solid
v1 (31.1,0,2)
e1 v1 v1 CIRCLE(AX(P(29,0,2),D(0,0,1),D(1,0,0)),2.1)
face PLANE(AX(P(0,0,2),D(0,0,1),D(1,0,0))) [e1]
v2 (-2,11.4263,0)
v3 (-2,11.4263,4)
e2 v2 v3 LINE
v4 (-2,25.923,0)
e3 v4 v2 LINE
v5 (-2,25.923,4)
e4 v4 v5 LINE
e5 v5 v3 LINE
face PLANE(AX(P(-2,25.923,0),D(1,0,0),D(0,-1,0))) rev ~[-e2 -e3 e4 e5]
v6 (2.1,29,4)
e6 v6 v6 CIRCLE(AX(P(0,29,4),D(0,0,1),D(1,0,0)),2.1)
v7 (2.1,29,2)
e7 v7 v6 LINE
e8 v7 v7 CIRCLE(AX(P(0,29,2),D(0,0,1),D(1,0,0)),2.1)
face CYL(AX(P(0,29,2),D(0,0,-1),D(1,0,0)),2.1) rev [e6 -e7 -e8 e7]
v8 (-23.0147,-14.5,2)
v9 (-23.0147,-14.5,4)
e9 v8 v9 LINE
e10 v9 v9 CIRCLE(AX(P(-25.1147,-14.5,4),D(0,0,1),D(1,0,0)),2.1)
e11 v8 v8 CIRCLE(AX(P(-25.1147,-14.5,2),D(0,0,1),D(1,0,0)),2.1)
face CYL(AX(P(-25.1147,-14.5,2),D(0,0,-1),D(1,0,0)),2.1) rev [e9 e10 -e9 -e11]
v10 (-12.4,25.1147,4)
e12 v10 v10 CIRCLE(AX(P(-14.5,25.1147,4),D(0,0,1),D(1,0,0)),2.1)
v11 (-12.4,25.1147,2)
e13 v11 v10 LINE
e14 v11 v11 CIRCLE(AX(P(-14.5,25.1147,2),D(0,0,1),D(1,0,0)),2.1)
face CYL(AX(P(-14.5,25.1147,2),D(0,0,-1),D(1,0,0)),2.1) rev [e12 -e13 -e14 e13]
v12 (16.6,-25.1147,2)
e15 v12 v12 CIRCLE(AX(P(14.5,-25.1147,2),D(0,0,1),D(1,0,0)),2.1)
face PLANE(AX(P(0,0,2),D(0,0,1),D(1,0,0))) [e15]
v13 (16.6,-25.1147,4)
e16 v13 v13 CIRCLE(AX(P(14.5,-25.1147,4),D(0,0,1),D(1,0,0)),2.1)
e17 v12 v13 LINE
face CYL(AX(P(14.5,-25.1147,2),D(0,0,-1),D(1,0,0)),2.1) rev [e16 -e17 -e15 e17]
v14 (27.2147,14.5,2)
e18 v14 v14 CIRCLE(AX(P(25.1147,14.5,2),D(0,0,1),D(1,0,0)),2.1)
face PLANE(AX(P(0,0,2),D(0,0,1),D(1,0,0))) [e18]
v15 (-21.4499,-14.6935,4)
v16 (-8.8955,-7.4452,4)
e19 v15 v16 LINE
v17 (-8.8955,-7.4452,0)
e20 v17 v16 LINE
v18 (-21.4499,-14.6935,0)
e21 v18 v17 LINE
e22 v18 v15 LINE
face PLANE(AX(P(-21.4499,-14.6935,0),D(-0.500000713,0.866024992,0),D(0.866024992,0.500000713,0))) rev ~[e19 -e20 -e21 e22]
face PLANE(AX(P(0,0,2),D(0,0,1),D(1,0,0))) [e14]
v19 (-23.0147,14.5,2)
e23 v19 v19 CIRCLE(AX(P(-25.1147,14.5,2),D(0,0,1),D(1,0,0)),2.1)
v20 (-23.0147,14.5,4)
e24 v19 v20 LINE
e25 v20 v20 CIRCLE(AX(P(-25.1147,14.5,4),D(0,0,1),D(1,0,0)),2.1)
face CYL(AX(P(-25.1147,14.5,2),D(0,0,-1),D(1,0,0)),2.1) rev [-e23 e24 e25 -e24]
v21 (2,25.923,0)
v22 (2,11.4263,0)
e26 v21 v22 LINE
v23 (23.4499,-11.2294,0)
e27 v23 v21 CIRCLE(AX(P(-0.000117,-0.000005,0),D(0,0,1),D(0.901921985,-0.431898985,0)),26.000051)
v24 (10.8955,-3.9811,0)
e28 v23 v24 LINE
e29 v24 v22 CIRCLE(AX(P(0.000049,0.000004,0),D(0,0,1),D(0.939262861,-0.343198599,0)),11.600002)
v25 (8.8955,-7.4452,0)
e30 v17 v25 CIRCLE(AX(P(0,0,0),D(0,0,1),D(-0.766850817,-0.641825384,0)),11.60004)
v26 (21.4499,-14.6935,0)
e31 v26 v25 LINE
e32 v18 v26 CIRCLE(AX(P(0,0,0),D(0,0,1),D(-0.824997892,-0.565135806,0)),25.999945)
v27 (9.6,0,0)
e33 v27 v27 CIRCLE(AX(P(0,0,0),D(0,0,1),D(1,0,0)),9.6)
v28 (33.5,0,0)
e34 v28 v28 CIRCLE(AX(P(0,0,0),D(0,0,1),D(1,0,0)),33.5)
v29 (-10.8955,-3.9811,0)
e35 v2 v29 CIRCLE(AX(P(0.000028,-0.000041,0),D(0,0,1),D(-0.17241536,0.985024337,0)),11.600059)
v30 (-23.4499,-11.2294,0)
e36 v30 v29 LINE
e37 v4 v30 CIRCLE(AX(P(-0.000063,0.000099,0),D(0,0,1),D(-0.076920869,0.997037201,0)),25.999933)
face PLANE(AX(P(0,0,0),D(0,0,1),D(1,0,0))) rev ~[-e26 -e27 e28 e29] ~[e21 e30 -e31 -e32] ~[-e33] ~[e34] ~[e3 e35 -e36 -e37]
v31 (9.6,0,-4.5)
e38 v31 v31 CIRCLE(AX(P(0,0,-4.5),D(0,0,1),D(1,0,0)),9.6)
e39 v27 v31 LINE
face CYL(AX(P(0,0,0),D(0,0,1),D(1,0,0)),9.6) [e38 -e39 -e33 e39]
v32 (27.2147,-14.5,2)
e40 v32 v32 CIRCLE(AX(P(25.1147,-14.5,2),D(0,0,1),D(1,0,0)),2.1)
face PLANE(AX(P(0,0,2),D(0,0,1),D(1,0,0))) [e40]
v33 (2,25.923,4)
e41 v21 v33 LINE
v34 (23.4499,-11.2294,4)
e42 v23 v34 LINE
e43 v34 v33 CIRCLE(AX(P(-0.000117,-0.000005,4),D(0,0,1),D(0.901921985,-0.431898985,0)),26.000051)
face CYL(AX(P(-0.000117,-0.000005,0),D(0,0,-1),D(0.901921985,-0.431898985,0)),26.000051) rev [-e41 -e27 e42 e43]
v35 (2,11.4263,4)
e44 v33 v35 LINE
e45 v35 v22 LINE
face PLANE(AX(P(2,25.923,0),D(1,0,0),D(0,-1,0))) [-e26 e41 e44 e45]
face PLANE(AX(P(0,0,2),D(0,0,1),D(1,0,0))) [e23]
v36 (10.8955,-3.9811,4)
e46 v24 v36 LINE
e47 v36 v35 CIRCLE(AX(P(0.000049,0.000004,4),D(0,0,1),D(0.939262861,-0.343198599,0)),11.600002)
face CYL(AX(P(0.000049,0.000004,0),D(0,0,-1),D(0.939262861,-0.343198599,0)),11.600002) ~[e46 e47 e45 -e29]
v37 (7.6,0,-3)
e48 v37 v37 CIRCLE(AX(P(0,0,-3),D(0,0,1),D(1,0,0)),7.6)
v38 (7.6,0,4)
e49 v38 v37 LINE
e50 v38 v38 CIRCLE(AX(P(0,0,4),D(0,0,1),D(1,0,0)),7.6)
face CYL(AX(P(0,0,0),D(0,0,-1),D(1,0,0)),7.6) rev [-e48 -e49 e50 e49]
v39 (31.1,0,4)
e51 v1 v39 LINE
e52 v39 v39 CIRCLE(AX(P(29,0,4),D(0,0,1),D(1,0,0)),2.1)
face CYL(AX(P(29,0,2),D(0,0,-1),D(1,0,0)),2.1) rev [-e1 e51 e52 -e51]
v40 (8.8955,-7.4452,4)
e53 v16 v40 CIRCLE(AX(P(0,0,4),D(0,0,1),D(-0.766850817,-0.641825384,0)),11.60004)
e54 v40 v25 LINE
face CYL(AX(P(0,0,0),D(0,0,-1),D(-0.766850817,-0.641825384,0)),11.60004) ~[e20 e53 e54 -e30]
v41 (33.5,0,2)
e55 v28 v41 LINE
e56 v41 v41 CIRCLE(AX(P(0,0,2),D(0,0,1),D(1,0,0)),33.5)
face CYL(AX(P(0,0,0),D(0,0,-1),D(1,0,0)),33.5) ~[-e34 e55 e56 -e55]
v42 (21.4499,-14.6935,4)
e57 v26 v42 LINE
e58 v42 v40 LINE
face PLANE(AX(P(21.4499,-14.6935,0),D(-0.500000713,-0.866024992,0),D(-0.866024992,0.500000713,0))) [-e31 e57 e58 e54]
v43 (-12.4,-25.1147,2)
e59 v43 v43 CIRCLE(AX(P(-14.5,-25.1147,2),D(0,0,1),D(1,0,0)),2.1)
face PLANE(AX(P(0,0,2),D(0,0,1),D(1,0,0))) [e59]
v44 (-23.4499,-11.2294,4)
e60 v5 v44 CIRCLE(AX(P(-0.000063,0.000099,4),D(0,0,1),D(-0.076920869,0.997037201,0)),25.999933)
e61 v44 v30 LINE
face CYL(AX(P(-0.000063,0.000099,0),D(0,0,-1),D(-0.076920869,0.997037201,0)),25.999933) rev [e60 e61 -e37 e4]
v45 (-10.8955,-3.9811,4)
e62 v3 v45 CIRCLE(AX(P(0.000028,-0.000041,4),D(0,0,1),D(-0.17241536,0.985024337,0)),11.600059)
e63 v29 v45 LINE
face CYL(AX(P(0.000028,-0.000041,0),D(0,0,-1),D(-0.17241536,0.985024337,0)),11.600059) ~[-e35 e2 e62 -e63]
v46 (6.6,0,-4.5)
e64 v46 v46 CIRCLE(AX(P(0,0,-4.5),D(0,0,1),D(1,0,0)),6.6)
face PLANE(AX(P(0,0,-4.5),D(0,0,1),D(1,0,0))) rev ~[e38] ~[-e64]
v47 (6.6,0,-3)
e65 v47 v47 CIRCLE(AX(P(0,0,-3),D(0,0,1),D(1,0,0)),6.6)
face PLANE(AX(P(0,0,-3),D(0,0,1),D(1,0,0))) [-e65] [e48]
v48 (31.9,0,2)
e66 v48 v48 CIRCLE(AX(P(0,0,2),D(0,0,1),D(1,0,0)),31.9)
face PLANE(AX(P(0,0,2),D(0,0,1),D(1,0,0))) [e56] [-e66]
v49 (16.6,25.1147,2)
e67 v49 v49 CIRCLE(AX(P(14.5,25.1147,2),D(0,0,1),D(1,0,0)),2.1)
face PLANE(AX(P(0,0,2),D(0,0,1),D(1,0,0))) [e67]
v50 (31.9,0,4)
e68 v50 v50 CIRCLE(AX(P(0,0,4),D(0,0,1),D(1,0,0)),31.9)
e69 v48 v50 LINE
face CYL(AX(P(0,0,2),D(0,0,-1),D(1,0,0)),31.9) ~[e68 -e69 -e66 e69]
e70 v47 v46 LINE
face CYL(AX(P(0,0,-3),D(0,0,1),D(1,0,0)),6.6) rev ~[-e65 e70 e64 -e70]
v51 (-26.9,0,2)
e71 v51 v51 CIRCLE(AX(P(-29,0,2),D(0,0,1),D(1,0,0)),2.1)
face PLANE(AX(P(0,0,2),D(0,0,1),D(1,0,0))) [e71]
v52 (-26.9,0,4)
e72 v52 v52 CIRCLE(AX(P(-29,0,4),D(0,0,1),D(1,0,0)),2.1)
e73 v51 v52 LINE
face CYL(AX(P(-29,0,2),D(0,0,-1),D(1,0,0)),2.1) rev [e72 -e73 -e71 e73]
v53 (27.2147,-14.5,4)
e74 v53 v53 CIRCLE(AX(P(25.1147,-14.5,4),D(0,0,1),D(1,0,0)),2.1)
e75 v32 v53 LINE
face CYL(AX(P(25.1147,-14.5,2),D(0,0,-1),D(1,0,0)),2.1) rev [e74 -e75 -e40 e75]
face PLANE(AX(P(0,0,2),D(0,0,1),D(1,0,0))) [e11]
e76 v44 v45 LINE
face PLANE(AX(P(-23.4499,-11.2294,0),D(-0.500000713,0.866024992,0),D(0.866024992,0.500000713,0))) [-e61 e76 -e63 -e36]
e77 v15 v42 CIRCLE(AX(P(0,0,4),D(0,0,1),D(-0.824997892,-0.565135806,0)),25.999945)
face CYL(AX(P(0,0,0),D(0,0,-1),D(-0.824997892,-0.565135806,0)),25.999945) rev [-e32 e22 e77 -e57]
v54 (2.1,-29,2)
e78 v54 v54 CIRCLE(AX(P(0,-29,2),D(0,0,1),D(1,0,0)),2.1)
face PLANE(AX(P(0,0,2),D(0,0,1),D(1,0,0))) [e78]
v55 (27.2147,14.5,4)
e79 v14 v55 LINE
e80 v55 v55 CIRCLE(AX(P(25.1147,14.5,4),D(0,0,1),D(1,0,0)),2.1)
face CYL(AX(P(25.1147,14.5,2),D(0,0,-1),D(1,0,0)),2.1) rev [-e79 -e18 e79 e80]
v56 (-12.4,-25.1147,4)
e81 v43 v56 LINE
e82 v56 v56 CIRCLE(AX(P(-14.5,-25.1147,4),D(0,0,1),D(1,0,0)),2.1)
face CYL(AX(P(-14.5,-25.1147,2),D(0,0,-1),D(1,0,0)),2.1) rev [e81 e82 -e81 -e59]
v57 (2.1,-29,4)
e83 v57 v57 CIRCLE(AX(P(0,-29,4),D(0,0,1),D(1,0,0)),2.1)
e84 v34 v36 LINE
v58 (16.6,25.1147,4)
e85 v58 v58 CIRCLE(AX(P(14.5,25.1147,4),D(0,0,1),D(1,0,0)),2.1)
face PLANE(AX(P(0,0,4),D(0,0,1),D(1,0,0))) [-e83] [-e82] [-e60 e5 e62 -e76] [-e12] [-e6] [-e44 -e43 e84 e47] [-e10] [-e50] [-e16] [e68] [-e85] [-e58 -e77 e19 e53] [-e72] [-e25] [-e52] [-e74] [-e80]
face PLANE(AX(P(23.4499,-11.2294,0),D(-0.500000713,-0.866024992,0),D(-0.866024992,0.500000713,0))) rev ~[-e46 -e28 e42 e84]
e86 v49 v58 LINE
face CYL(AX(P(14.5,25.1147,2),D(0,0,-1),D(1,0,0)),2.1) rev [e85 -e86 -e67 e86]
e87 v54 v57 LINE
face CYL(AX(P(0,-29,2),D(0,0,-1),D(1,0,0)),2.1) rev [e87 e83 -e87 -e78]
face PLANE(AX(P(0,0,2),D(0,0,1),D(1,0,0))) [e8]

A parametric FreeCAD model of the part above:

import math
import FreeCAD as App
import Part
import Sketcher
from FreeCAD import Vector
Q = App.Units.Quantity

doc = App.newDocument("Part")
body = doc.addObject("PartDesign::Body", "Body")

# Sketch on XY plane
sketch1 = body.newObject("Sketcher::SketchObject", "Sketch")
sketch1.AttachmentSupport = (doc.getObject("XY_Plane"), [""])
sketch1.MapMode = "FlatFace"
sketch1.addGeometry(Part.Circle(Vector(0, 0, 0), Vector(0, 0, 1), 34), False)
sketch1.addGeometry(Part.LineSegment(Vector(9, -7, 0), Vector(21, -15, 0)), False)
sketch1.addGeometry(Part.ArcOfCircle(Part.Circle(Vector(0, 0, 0), Vector(0, 0, 1), 26), math.radians(-146), math.radians(-34)), False)
sketch1.addGeometry(Part.LineSegment(Vector(-21, -15, 0), Vector(-9, -7, 0)), False)
sketch1.addGeometry(Part.ArcOfCircle(Part.Circle(Vector(0, 0, 0), Vector(0, 0, 1), 12), math.radians(-140), math.radians(-40)), False)
sketch1.addGeometry(Part.ArcOfCircle(Part.Circle(Vector(0, 0, 0), Vector(0, 0, 1), 26), math.radians(94), math.radians(206)), False)
sketch1.addGeometry(Part.LineSegment(Vector(-2, 26, 0), Vector(-2, 11, 0)), False)
sketch1.addGeometry(Part.ArcOfCircle(Part.Circle(Vector(0, 0, 0), Vector(0, 0, 1), 12), math.radians(100), math.radians(200)), False)
sketch1.addGeometry(Part.LineSegment(Vector(-11, -4, 0), Vector(-23, -11, 0)), False)
sketch1.addGeometry(Part.LineSegment(Vector(2, 11, 0), Vector(2, 26, 0)), False)
sketch1.addGeometry(Part.ArcOfCircle(Part.Circle(Vector(0, 0, 0), Vector(0, 0, 1), 26), math.radians(-26), math.radians(86)), False)
sketch1.addGeometry(Part.LineSegment(Vector(23, -11, 0), Vector(11, -4, 0)), False)
sketch1.addGeometry(Part.ArcOfCircle(Part.Circle(Vector(0, 0, 0), Vector(0, 0, 1), 12), math.radians(-20), math.radians(80)), False)
sketch1.addGeometry(Part.Circle(Vector(0, 0, 0), Vector(0, 0, 1), 8), False)
sketch1.addConstraint(Sketcher.Constraint("Coincident", 1, 2, 2, 2))
sketch1.addConstraint(Sketcher.Constraint("Coincident", 2, 1, 3, 1))
sketch1.addConstraint(Sketcher.Constraint("Coincident", 3, 2, 4, 1))
sketch1.addConstraint(Sketcher.Constraint("Coincident", 4, 2, 1, 1))
sketch1.addConstraint(Sketcher.Constraint("Coincident", 5, 1, 6, 1))
sketch1.addConstraint(Sketcher.Constraint("Coincident", 6, 2, 7, 1))
sketch1.addConstraint(Sketcher.Constraint("Coincident", 7, 2, 8, 1))
sketch1.addConstraint(Sketcher.Constraint("Coincident", 8, 2, 5, 2))
sketch1.addConstraint(Sketcher.Constraint("Coincident", 9, 2, 10, 2))
sketch1.addConstraint(Sketcher.Constraint("Coincident", 10, 1, 11, 1))
sketch1.addConstraint(Sketcher.Constraint("Coincident", 11, 2, 12, 1))
sketch1.addConstraint(Sketcher.Constraint("Coincident", 12, 2, 9, 1))
sketch1.addConstraint(Sketcher.Constraint("Vertical", 6))
sketch1.addConstraint(Sketcher.Constraint("Vertical", 9))
sketch1.addConstraint(Sketcher.Constraint("Coincident", 0, 3, -1, 1))
sketch1.addConstraint(Sketcher.Constraint("Coincident", 2, 3, -1, 1))
sketch1.addConstraint(Sketcher.Constraint("Coincident", 4, 3, -1, 1))
sketch1.addConstraint(Sketcher.Constraint("Coincident", 5, 3, -1, 1))
sketch1.addConstraint(Sketcher.Constraint("Coincident", 7, 3, -1, 1))
sketch1.addConstraint(Sketcher.Constraint("Coincident", 10, 3, -1, 1))
sketch1.addConstraint(Sketcher.Constraint("Coincident", 12, 3, -1, 1))
sketch1.addConstraint(Sketcher.Constraint("Coincident", 13, 3, -1, 1))
sketch1.addConstraint(Sketcher.Constraint("Equal", 2, 5))
sketch1.addConstraint(Sketcher.Constraint("Equal", 4, 7))
sketch1.addConstraint(Sketcher.Constraint("Equal", 5, 10))
sketch1.addConstraint(Sketcher.Constraint("Equal", 7, 12))
sketch1.addConstraint(Sketcher.Constraint("Parallel", 3, 8))
sketch1.addConstraint(Sketcher.Constraint("Parallel", 1, 11))
sketch1.addConstraint(Sketcher.Constraint("Horizontal", 1, 2, 2, 1))
sketch1.addConstraint(Sketcher.Constraint("Horizontal", 3, 2, 4, 2))
sketch1.addConstraint(Sketcher.Constraint("Horizontal", 5, 1, 9, 2))
sketch1.addConstraint(Sketcher.Constraint("Horizontal", 8, 2, 10, 1))
sketch1.addConstraint(Sketcher.Constraint("Equal", 3, 8))
sketch1.addConstraint(Sketcher.Constraint("Diameter", 0, Q("67 mm")))
sketch1.addConstraint(Sketcher.Constraint("Diameter", 13, Q("15.2 mm")))
sketch1.addConstraint(Sketcher.Constraint("DistanceX", 5, 1, -1, 1, Q("2 mm")))
sketch1.addConstraint(Sketcher.Constraint("Radius", 2, Q("26 mm")))
sketch1.addConstraint(Sketcher.Constraint("DistanceX", 7, 2, 3, 2, Q("2 mm")))
sketch1.addConstraint(Sketcher.Constraint("Radius", 4, Q("11.6 mm")))
sketch1.addConstraint(Sketcher.Constraint("Angle", 1, Q("-30 deg")))
pad1 = body.newObject("PartDesign::Pad", "Pad")
pad1.Profile = sketch1
pad1.Length = 2

# Sketch on XY plane
sketch2 = body.newObject("Sketcher::SketchObject", "Sketch001")
sketch2.AttachmentSupport = (doc.getObject("XY_Plane"), [""])
sketch2.MapMode = "FlatFace"
sketch2.AttachmentOffset = App.Placement(Vector(0, 0, 2), App.Rotation())
sketch2.addGeometry(Part.Circle(Vector(0, 0, 0), Vector(0, 0, 1), 31.9), False)
sketch2.addGeometry(Part.Circle(Vector(0, 0, 0), Vector(0, 0, 1), 7.6), False)
sketch2.addGeometry(Part.Circle(Vector(-14.5, -25.1, 0), Vector(0, 0, 1), 2.1), False)
sketch2.addGeometry(Part.Circle(Vector(-25.1, -14.5, 0), Vector(0, 0, 1), 2.1), False)
sketch2.addGeometry(Part.Circle(Vector(0, -29, 0), Vector(0, 0, 1), 2.1), False)
sketch2.addGeometry(Part.Circle(Vector(14.5, -25.1, 0), Vector(0, 0, 1), 2.1), False)
sketch2.addGeometry(Part.LineSegment(Vector(8.9, -7.4, 0), Vector(21.4, -14.7, 0)), False)
sketch2.addGeometry(Part.ArcOfCircle(Part.Circle(Vector(0, 0, 0), Vector(0, 0, 1), 26), math.radians(-146), math.radians(-34)), False)
sketch2.addGeometry(Part.LineSegment(Vector(-21.4, -14.7, 0), Vector(-8.9, -7.4, 0)), False)
sketch2.addGeometry(Part.ArcOfCircle(Part.Circle(Vector(0, 0, 0), Vector(0, 0, 1), 11.6), math.radians(-140), math.radians(-40)), False)
sketch2.addGeometry(Part.Circle(Vector(25.1, -14.5, 0), Vector(0, 0, 1), 2.1), False)
sketch2.addGeometry(Part.Circle(Vector(-29, 0, 0), Vector(0, 0, 1), 2.1), False)
sketch2.addGeometry(Part.Circle(Vector(-25.1, 14.5, 0), Vector(0, 0, 1), 2.1), False)
sketch2.addGeometry(Part.ArcOfCircle(Part.Circle(Vector(0, 0, 0), Vector(0, 0, 1), 26), math.radians(94), math.radians(206)), False)
sketch2.addGeometry(Part.LineSegment(Vector(-2, 25.9, 0), Vector(-2, 11.4, 0)), False)
sketch2.addGeometry(Part.ArcOfCircle(Part.Circle(Vector(0, 0, 0), Vector(0, 0, 1), 11.6), math.radians(100), math.radians(200)), False)
sketch2.addGeometry(Part.LineSegment(Vector(-10.9, -4, 0), Vector(-23.4, -11.2, 0)), False)
sketch2.addGeometry(Part.Circle(Vector(-14.5, 25.1, 0), Vector(0, 0, 1), 2.1), False)
sketch2.addGeometry(Part.Circle(Vector(0, 29, 0), Vector(0, 0, 1), 2.1), False)
sketch2.addGeometry(Part.LineSegment(Vector(2, 11.4, 0), Vector(2, 25.9, 0)), False)
sketch2.addGeometry(Part.ArcOfCircle(Part.Circle(Vector(0, 0, 0), Vector(0, 0, 1), 26), math.radians(-26), math.radians(86)), False)
sketch2.addGeometry(Part.LineSegment(Vector(23.4, -11.2, 0), Vector(10.9, -4, 0)), False)
sketch2.addGeometry(Part.ArcOfCircle(Part.Circle(Vector(0, 0, 0), Vector(0, 0, 1), 11.6), math.radians(-20), math.radians(80)), False)
sketch2.addGeometry(Part.Circle(Vector(29, 0, 0), Vector(0, 0, 1), 2.1), False)
sketch2.addGeometry(Part.Circle(Vector(25.1, 14.5, 0), Vector(0, 0, 1), 2.1), False)
sketch2.addGeometry(Part.Circle(Vector(14.5, 25.1, 0), Vector(0, 0, 1), 2.1), False)
sketch2.addConstraint(Sketcher.Constraint("Coincident", 6, 2, 7, 2))
sketch2.addConstraint(Sketcher.Constraint("Coincident", 7, 1, 8, 1))
sketch2.addConstraint(Sketcher.Constraint("Coincident", 8, 2, 9, 1))
sketch2.addConstraint(Sketcher.Constraint("Coincident", 9, 2, 6, 1))
sketch2.addConstraint(Sketcher.Constraint("Coincident", 13, 1, 14, 1))
sketch2.addConstraint(Sketcher.Constraint("Coincident", 14, 2, 15, 1))
sketch2.addConstraint(Sketcher.Constraint("Coincident", 15, 2, 16, 1))
sketch2.addConstraint(Sketcher.Constraint("Coincident", 16, 2, 13, 2))
sketch2.addConstraint(Sketcher.Constraint("Coincident", 19, 2, 20, 2))
sketch2.addConstraint(Sketcher.Constraint("Coincident", 20, 1, 21, 1))
sketch2.addConstraint(Sketcher.Constraint("Coincident", 21, 2, 22, 1))
sketch2.addConstraint(Sketcher.Constraint("Coincident", 22, 2, 19, 1))
sketch2.addConstraint(Sketcher.Constraint("Vertical", 14))
sketch2.addConstraint(Sketcher.Constraint("Vertical", 19))
sketch2.addConstraint(Sketcher.Constraint("Coincident", 0, 3, -1, 1))
sketch2.addConstraint(Sketcher.Constraint("Coincident", 1, 3, -1, 1))
sketch2.addConstraint(Sketcher.Constraint("Coincident", 7, 3, -1, 1))
sketch2.addConstraint(Sketcher.Constraint("Coincident", 9, 3, -1, 1))
sketch2.addConstraint(Sketcher.Constraint("Coincident", 13, 3, -1, 1))
sketch2.addConstraint(Sketcher.Constraint("Coincident", 15, 3, -1, 1))
sketch2.addConstraint(Sketcher.Constraint("Coincident", 20, 3, -1, 1))
sketch2.addConstraint(Sketcher.Constraint("Coincident", 22, 3, -1, 1))
sketch2.addConstraint(Sketcher.Constraint("Equal", 2, 3))
sketch2.addConstraint(Sketcher.Constraint("Equal", 3, 4))
sketch2.addConstraint(Sketcher.Constraint("Equal", 4, 5))
sketch2.addConstraint(Sketcher.Constraint("Equal", 5, 10))
sketch2.addConstraint(Sketcher.Constraint("Equal", 10, 11))
sketch2.addConstraint(Sketcher.Constraint("Equal", 11, 12))
sketch2.addConstraint(Sketcher.Constraint("Equal", 7, 13))
sketch2.addConstraint(Sketcher.Constraint("Equal", 9, 15))
sketch2.addConstraint(Sketcher.Constraint("Equal", 12, 17))
sketch2.addConstraint(Sketcher.Constraint("Equal", 17, 18))
sketch2.addConstraint(Sketcher.Constraint("Equal", 13, 20))
sketch2.addConstraint(Sketcher.Constraint("Equal", 15, 22))
sketch2.addConstraint(Sketcher.Constraint("Equal", 18, 23))
sketch2.addConstraint(Sketcher.Constraint("Equal", 23, 24))
sketch2.addConstraint(Sketcher.Constraint("Equal", 24, 25))
sketch2.addConstraint(Sketcher.Constraint("Symmetric", 10, 3, 12, 3, -1, 1))
sketch2.addConstraint(Sketcher.Constraint("Symmetric", 5, 3, 17, 3, -1, 1))
sketch2.addConstraint(Sketcher.Constraint("Symmetric", 4, 3, 18, 3, -1, 1))
sketch2.addConstraint(Sketcher.Constraint("Symmetric", 11, 3, 23, 3, -1, 1))
sketch2.addConstraint(Sketcher.Constraint("Symmetric", 3, 3, 24, 3, -1, 1))
sketch2.addConstraint(Sketcher.Constraint("Symmetric", 2, 3, 25, 3, -1, 1))
sketch2.addConstraint(Sketcher.Constraint("Symmetric", 2, 3, 5, 3, -2))
sketch2.addConstraint(Sketcher.Constraint("Symmetric", 3, 3, 10, 3, -2))
sketch2.addConstraint(Sketcher.Constraint("PointOnObject", 4, 3, -2))
sketch2.addConstraint(Sketcher.Constraint("PointOnObject", 11, 3, -1))
sketch2.addConstraint(Sketcher.Constraint("Parallel", 8, 16))
sketch2.addConstraint(Sketcher.Constraint("Parallel", 6, 21))
sketch2.addConstraint(Sketcher.Constraint("Horizontal", 6, 2, 7, 1))
sketch2.addConstraint(Sketcher.Constraint("Horizontal", 8, 2, 9, 2))
sketch2.addConstraint(Sketcher.Constraint("Horizontal", 13, 1, 19, 2))
sketch2.addConstraint(Sketcher.Constraint("Horizontal", 16, 2, 20, 1))
sketch2.addConstraint(Sketcher.Constraint("Equal", 8, 16))
sketch2.addConstraint(Sketcher.Constraint("Diameter", 0, Q("63.8 mm")))
sketch2.addConstraint(Sketcher.Constraint("Diameter", 1, Q("15.2 mm")))
sketch2.addConstraint(Sketcher.Constraint("Diameter", 2, Q("4.2 mm")))
sketch2.addConstraint(Sketcher.Constraint("DistanceY", 4, 3, -1, 1, Q("29 mm")))
sketch2.addConstraint(Sketcher.Constraint("DistanceX", 11, 3, -1, 1, Q("29 mm")))
sketch2.addConstraint(Sketcher.Constraint("DistanceX", 13, 1, -1, 1, Q("2 mm")))
sketch2.addConstraint(Sketcher.Constraint("Radius", 7, Q("26 mm")))
sketch2.addConstraint(Sketcher.Constraint("DistanceX", 2, 3, 5, 3, Q("29 mm")))
sketch2.addConstraint(Sketcher.Constraint("DistanceX", 15, 2, 8, 2, Q("2 mm")))
sketch2.addConstraint(Sketcher.Constraint("Radius", 9, Q("11.6 mm")))
sketch2.addConstraint(Sketcher.Constraint("Angle", 6, Q("-30 deg")))
sketch2.addConstraint(Sketcher.Constraint("DistanceY", 3, 3, -1, 1, Q("14.5 mm")))
sketch2.addConstraint(Sketcher.Constraint("DistanceY", 2, 3, -1, 1, Q("25.1147 mm")))
sketch2.addConstraint(Sketcher.Constraint("DistanceX", 3, 3, -1, 1, Q("25.1147 mm")))
pad2 = body.newObject("PartDesign::Pad", "Pad001")
pad2.Profile = sketch2
pad2.Length = 2

# Sketch on XY plane
sketch3 = body.newObject("Sketcher::SketchObject", "Sketch002")
sketch3.AttachmentSupport = (doc.getObject("XY_Plane"), [""])
sketch3.MapMode = "FlatFace"
sketch3.addGeometry(Part.Circle(Vector(0, 0, 0), Vector(0, 0, 1), 10), False)
sketch3.addGeometry(Part.Circle(Vector(0, 0, 0), Vector(0, 0, 1), 8), False)
sketch3.addConstraint(Sketcher.Constraint("Coincident", 0, 3, -1, 1))
sketch3.addConstraint(Sketcher.Constraint("Coincident", 1, 3, -1, 1))
sketch3.addConstraint(Sketcher.Constraint("Diameter", 1, Q("15.2 mm")))
sketch3.addConstraint(Sketcher.Constraint("Diameter", 0, Q("19.2 mm")))
pad3 = body.newObject("PartDesign::Pad", "Pad002")
pad3.Profile = sketch3
pad3.Length = 3
pad3.Reversed = True

# Sketch on XY plane
sketch4 = body.newObject("Sketcher::SketchObject", "Sketch003")
sketch4.AttachmentSupport = (doc.getObject("XY_Plane"), [""])
sketch4.MapMode = "FlatFace"
sketch4.AttachmentOffset = App.Placement(Vector(0, 0, -3), App.Rotation())
sketch4.addGeometry(Part.Circle(Vector(0, 0, 0), Vector(0, 0, 1), 10), False)
sketch4.addGeometry(Part.Circle(Vector(0, 0, 0), Vector(0, 0, 1), 7), False)
sketch4.addConstraint(Sketcher.Constraint("Coincident", 0, 3, -1, 1))
sketch4.addConstraint(Sketcher.Constraint("Coincident", 1, 3, -1, 1))
sketch4.addConstraint(Sketcher.Constraint("Diameter", 0, Q("19.2 mm")))
sketch4.addConstraint(Sketcher.Constraint("Diameter", 1, Q("13.2 mm")))
pad4 = body.newObject("PartDesign::Pad", "Pad003")
pad4.Profile = sketch4
pad4.Length = 1.5
pad4.Reversed = True

doc.recompute()
